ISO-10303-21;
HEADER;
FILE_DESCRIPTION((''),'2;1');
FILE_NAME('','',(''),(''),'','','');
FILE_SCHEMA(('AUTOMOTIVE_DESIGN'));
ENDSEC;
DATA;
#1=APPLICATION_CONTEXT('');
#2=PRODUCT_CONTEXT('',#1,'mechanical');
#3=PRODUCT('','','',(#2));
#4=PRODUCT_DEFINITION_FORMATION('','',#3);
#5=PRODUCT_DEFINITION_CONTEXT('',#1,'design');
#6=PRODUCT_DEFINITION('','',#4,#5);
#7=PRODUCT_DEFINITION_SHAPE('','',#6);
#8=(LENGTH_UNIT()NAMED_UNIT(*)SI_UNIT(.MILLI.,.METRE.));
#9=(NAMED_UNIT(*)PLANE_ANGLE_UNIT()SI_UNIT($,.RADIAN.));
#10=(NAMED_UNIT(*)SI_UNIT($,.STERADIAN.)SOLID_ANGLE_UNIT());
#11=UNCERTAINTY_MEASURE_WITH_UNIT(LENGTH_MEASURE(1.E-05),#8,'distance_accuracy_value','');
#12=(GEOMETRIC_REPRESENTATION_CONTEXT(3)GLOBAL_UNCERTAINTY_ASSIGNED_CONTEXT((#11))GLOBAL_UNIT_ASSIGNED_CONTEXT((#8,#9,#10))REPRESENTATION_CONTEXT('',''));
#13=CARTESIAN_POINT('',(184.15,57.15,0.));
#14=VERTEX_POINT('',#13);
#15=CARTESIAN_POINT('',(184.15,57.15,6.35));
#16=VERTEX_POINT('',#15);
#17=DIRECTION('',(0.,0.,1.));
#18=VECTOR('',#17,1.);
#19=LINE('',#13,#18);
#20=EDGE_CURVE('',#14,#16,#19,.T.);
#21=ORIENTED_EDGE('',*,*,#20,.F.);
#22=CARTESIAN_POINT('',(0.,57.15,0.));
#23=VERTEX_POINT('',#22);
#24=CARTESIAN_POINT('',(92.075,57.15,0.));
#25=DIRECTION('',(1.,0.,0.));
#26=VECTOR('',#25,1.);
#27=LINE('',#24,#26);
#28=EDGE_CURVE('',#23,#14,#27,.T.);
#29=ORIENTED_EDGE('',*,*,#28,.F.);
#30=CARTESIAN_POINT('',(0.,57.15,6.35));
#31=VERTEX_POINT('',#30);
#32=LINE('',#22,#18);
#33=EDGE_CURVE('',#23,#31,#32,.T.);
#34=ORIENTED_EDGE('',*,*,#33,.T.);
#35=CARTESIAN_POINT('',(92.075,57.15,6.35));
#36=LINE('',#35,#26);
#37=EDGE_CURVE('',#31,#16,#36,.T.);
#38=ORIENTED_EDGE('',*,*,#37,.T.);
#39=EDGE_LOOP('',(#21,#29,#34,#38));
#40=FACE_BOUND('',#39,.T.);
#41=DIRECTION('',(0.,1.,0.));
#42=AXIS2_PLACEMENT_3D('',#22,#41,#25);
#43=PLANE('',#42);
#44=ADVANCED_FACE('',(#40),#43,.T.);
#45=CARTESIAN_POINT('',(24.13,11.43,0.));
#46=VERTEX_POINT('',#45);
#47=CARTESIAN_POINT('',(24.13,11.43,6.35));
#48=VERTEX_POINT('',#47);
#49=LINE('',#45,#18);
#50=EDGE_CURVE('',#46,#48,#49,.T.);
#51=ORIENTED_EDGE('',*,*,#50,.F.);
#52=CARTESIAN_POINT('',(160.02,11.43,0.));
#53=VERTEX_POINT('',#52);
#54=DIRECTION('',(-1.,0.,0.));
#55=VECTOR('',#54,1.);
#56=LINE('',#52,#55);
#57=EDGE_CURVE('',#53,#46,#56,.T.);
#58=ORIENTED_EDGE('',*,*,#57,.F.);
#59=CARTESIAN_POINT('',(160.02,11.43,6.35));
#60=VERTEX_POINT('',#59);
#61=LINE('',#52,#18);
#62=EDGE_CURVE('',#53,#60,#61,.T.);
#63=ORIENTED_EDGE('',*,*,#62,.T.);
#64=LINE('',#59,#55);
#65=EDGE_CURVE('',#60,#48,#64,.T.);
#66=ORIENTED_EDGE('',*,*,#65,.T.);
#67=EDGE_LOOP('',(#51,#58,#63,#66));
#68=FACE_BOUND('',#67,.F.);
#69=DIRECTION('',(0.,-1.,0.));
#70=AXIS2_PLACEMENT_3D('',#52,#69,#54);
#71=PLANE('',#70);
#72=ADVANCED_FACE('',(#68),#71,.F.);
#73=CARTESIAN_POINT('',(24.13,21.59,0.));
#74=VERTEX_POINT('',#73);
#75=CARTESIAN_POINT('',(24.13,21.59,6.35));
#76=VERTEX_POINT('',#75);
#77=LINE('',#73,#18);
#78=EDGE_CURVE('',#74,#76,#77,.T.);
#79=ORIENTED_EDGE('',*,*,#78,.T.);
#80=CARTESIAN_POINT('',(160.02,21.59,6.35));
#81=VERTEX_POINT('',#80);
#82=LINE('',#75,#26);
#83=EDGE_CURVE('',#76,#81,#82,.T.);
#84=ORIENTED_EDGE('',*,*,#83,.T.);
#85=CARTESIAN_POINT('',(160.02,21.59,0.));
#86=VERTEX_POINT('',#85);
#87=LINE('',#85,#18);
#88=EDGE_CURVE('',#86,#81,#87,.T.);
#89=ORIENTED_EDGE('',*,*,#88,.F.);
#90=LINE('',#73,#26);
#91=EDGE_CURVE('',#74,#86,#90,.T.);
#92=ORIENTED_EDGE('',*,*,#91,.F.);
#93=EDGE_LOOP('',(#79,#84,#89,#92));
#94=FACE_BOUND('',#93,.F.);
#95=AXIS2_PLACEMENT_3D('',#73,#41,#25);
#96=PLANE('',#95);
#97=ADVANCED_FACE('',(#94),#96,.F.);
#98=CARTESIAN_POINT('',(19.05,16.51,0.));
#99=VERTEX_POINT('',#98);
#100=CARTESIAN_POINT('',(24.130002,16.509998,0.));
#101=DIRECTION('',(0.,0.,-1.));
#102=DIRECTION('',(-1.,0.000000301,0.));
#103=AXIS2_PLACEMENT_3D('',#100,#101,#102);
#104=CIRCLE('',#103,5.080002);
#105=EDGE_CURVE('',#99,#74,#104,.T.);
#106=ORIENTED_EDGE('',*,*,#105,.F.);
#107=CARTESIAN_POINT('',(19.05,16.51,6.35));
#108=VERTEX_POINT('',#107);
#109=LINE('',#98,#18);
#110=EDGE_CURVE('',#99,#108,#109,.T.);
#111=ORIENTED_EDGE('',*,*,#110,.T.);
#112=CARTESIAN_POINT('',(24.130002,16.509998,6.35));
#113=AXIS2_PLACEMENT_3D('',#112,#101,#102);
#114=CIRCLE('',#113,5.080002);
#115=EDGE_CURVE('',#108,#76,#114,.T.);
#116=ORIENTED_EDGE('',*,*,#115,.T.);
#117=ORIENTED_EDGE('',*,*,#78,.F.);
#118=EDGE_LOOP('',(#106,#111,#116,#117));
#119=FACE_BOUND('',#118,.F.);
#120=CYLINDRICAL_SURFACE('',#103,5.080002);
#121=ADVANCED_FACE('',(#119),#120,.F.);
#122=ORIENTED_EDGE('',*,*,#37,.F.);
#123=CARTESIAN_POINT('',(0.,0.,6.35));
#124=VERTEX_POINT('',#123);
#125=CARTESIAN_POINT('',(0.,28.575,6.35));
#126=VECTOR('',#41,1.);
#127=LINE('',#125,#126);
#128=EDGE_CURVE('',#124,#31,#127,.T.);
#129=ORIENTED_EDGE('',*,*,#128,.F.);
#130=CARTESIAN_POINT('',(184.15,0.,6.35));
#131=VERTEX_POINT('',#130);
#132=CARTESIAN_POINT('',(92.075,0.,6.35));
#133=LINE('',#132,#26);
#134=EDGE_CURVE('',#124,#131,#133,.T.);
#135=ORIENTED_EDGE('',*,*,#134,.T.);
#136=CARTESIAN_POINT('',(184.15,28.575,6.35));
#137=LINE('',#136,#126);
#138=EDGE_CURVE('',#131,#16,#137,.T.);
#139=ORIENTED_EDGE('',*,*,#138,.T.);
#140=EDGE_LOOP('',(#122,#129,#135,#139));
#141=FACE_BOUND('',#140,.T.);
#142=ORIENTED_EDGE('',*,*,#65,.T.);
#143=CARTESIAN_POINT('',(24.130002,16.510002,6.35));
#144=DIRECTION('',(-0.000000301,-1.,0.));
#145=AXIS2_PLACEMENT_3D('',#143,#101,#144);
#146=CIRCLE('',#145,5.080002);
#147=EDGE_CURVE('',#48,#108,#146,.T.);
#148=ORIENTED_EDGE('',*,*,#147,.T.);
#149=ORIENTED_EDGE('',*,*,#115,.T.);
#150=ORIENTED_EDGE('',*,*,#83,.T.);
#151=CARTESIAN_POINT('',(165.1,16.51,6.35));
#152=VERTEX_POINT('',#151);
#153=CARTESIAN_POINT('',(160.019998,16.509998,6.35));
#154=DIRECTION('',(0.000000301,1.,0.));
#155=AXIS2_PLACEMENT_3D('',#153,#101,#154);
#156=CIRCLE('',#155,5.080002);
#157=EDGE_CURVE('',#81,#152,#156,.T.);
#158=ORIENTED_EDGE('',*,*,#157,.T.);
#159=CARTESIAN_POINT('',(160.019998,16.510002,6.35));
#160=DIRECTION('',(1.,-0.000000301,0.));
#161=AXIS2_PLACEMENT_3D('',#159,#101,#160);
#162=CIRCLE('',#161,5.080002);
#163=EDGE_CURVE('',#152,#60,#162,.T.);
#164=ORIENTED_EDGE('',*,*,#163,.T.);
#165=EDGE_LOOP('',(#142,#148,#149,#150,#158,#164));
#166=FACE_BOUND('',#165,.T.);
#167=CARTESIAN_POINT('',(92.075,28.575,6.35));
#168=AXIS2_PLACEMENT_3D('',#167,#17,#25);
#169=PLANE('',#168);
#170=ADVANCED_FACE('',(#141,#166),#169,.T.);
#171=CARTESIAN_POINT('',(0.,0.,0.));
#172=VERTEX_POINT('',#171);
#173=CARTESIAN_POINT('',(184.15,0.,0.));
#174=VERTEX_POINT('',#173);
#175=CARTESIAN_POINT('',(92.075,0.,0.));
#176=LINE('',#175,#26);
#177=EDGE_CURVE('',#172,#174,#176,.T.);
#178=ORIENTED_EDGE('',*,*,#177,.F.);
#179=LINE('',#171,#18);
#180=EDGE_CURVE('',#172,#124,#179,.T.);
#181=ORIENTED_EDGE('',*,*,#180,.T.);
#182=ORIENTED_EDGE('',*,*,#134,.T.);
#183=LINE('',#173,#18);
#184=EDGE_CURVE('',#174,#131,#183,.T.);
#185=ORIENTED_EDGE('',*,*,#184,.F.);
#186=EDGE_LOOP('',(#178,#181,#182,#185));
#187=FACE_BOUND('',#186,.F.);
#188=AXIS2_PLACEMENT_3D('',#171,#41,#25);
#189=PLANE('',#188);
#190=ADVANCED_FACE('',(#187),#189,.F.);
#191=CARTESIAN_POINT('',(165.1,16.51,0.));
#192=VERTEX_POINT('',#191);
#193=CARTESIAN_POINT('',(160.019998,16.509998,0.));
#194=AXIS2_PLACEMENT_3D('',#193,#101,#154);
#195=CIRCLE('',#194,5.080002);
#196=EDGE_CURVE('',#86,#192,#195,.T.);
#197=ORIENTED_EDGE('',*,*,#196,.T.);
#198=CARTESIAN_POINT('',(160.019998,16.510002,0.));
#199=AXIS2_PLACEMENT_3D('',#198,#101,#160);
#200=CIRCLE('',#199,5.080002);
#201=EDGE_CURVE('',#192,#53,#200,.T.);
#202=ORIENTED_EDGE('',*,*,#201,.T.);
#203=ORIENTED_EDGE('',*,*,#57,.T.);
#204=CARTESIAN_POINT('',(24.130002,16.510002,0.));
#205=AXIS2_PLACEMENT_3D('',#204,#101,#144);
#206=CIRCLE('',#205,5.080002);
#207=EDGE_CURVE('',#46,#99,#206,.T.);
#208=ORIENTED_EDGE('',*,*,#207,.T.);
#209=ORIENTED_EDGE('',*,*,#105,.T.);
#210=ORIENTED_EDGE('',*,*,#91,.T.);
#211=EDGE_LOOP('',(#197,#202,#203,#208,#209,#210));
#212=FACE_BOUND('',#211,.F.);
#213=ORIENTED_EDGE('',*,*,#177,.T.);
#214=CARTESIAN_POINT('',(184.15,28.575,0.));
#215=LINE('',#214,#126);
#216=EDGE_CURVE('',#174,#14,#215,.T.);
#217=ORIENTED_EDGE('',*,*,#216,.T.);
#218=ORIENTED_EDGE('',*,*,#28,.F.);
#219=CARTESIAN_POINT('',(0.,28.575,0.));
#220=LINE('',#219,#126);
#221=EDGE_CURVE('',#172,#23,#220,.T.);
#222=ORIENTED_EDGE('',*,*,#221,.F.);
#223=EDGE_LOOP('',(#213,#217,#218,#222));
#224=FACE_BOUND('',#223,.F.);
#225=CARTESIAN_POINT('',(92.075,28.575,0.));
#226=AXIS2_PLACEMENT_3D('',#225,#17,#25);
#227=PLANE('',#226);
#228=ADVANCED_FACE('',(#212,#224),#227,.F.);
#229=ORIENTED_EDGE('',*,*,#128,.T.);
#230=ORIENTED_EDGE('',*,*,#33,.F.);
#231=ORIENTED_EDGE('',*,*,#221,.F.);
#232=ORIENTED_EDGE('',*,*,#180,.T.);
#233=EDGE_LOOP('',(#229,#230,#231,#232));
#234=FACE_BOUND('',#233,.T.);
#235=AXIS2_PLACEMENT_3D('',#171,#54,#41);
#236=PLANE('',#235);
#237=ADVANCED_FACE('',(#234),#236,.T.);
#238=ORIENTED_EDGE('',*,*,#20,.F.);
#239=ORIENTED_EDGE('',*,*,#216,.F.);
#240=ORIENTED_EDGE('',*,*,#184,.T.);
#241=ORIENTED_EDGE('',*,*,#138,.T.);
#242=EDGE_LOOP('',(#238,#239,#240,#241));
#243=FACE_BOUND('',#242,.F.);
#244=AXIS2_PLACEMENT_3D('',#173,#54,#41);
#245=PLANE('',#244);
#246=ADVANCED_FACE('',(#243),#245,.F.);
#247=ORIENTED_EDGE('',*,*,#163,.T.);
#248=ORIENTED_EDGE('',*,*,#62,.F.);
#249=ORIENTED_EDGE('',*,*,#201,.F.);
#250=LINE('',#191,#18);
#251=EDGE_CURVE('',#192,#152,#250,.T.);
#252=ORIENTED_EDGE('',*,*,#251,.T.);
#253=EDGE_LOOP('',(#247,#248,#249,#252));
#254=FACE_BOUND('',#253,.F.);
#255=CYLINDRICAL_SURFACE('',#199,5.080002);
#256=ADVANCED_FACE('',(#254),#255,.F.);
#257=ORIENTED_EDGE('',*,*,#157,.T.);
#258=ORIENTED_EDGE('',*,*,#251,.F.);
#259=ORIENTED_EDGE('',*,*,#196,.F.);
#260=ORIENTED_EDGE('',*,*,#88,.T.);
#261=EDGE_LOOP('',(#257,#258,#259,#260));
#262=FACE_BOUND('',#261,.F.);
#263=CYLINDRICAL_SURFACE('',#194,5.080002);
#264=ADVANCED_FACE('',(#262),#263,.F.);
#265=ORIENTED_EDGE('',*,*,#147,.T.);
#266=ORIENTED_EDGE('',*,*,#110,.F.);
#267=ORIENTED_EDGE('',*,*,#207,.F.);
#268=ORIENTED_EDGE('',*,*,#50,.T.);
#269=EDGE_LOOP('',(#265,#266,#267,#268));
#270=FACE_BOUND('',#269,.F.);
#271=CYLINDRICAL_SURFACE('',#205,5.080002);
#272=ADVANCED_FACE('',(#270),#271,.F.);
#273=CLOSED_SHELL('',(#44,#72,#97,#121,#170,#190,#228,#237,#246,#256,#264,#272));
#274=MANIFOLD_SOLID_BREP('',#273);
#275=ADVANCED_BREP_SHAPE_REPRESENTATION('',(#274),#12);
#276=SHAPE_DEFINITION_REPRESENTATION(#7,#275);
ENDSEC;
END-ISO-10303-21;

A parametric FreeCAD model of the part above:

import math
import FreeCAD as App
import Part
import Sketcher
from FreeCAD import Vector
Q = App.Units.Quantity

doc = App.newDocument("Part")
params = doc.addObject("Spreadsheet::Sheet", "Params")
for row, (alias, value) in enumerate([
    ("sketch1_radius", "0.2000001 in"),
    ("sketch1_width", "7.25 in"),
    ("sketch1_width2", "5.35 in"),
    ("sketch1_height", "2.25 in"),
    ("pad1_length", "0.25 in"),
], start=1):
    params.set(f"A{row}", alias)
    params.set(f"B{row}", "=" + value)
    params.setAlias(f"B{row}", alias)

body = doc.addObject("PartDesign::Body", "Body")

sketch1 = body.newObject("Sketcher::SketchObject", "Sketch")
sketch1.AttachmentSupport = (doc.getObject("XY_Plane"), [""])
sketch1.MapMode = "FlatFace"
sketch1.addGeometry(Part.LineSegment(Vector(0, 57, 0), Vector(0, 0, 0)), False)
sketch1.addGeometry(Part.LineSegment(Vector(0, 0, 0), Vector(184, 0, 0)), False)
sketch1.addGeometry(Part.LineSegment(Vector(184, 0, 0), Vector(184, 57, 0)), False)
sketch1.addGeometry(Part.LineSegment(Vector(184, 57, 0), Vector(0, 57, 0)), False)
sketch1.addGeometry(Part.ArcOfCircle(Part.Circle(Vector(160, 17, 0), Vector(0, 0, 1), 5), math.radians(-90), math.radians(0)), False)
sketch1.addGeometry(Part.LineSegment(Vector(160, 11, 0), Vector(24, 11, 0)), False)
sketch1.addGeometry(Part.ArcOfCircle(Part.Circle(Vector(24, 17, 0), Vector(0, 0, 1), 5), math.radians(-180), math.radians(-90)), False)
sketch1.addGeometry(Part.ArcOfCircle(Part.Circle(Vector(24, 17, 0), Vector(0, 0, 1), 5), math.radians(90), math.radians(180)), False)
sketch1.addGeometry(Part.LineSegment(Vector(24, 22, 0), Vector(160, 22, 0)), False)
sketch1.addGeometry(Part.ArcOfCircle(Part.Circle(Vector(160, 17, 0), Vector(0, 0, 1), 5), math.radians(0), math.radians(90)), False)
sketch1.addConstraint(Sketcher.Constraint("Coincident", 0, 2, 1, 1))
sketch1.addConstraint(Sketcher.Constraint("Coincident", 1, 2, 2, 1))
sketch1.addConstraint(Sketcher.Constraint("Coincident", 2, 2, 3, 1))
sketch1.addConstraint(Sketcher.Constraint("Coincident", 3, 2, 0, 1))
sketch1.addConstraint(Sketcher.Constraint("Tangent", 4, 1, 5, 1))
sketch1.addConstraint(Sketcher.Constraint("Tangent", 5, 2, 6, 2))
sketch1.addConstraint(Sketcher.Constraint("Tangent", 6, 1, 7, 2))
sketch1.addConstraint(Sketcher.Constraint("Tangent", 7, 1, 8, 1))
sketch1.addConstraint(Sketcher.Constraint("Tangent", 8, 2, 9, 2))
sketch1.addConstraint(Sketcher.Constraint("Tangent", 9, 1, 4, 2))
sketch1.addConstraint(Sketcher.Constraint("Vertical", 0))
sketch1.addConstraint(Sketcher.Constraint("Horizontal", 1))
sketch1.addConstraint(Sketcher.Constraint("Vertical", 2))
sketch1.addConstraint(Sketcher.Constraint("Horizontal", 3))
sketch1.addConstraint(Sketcher.Constraint("Horizontal", 5))
sketch1.addConstraint(Sketcher.Constraint("Horizontal", 8))
sketch1.addConstraint(Sketcher.Constraint("Coincident", 0, 2, -1, 1))
sketch1.addConstraint(Sketcher.Constraint("Equal", 4, 6))
sketch1.addConstraint(Sketcher.Constraint("Equal", 6, 7))
sketch1.addConstraint(Sketcher.Constraint("Horizontal", 9, 3, 6, 1))
sketch1.addConstraint(Sketcher.Constraint("Horizontal", 6, 1, 9, 1))
sketch1.addConstraint(Sketcher.Constraint("Radius", 4, Q("0.2000001 in")))
sketch1.addConstraint(Sketcher.Constraint("DistanceX", 1, 1, 1, 2, Q("7.25 in")))
sketch1.addConstraint(Sketcher.Constraint("DistanceX", 5, 2, 5, 1, Q("5.35 in")))
sketch1.addConstraint(Sketcher.Constraint("DistanceY", 0, 2, 0, 1, Q("2.25 in")))
sketch1.addConstraint(Sketcher.Constraint("DistanceX", -1, 1, 4, 3, Q("6.2999999 in")))
sketch1.addConstraint(Sketcher.Constraint("DistanceY", 4, 3, 2, 2, Q("1.5999999 in")))
sketch1.setExpression("Constraints[21]", "Params.sketch1_radius")
sketch1.setExpression("Constraints[22]", "Params.sketch1_width")
sketch1.setExpression("Constraints[23]", "Params.sketch1_width2")
sketch1.setExpression("Constraints[24]", "Params.sketch1_height")
pad1 = body.newObject("PartDesign::Pad", "Pad")
pad1.Profile = sketch1
pad1.setExpression("Length", "Params.pad1_length")

doc.recompute()
